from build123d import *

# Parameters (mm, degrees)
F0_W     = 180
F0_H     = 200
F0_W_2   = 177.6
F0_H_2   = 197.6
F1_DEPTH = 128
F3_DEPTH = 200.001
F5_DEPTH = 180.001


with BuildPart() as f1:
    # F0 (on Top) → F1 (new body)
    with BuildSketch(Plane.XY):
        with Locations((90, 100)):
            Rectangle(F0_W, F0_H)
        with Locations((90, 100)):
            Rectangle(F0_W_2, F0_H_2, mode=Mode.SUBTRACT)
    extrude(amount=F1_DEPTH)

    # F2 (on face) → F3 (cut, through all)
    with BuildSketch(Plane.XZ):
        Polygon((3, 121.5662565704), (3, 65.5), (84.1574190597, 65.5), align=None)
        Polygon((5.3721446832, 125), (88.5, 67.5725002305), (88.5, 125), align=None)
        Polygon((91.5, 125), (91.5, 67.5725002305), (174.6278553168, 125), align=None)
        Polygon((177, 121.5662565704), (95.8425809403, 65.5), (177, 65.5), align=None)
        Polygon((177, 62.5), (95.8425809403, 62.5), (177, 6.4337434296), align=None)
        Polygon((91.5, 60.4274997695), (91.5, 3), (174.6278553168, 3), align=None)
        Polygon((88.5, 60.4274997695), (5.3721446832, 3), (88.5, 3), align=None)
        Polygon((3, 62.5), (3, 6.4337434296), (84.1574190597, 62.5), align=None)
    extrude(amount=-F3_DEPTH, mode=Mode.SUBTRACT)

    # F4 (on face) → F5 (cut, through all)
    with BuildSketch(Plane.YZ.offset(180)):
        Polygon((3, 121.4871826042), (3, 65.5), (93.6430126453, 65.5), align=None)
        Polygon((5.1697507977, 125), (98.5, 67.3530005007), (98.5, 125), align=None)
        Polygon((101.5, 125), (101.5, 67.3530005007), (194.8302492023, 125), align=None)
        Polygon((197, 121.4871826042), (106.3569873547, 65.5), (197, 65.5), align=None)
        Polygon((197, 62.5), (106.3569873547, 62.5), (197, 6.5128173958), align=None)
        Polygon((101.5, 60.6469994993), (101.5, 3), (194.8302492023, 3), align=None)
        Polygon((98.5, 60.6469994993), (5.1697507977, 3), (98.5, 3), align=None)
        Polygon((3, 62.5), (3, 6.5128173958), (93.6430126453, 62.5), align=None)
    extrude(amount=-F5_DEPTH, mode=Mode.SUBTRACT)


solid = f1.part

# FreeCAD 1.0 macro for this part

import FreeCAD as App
import Part
import Sketcher

V = App.Vector
Q = App.Units.Quantity


def add_polygon(sketch, points):
    """Adds a closed chain of lines whose ends are joined by coincident constraints."""
    first, n = sketch.GeometryCount, len(points)
    for a, b in zip(points, points[1:] + points[:1]):
        sketch.addGeometry(Part.LineSegment(App.Vector(*a, 0), App.Vector(*b, 0)), False)
    for i in range(n):
        sketch.addConstraint(Sketcher.Constraint("Coincident", first + i, 2, first + (i + 1) % n, 1))

doc = App.newDocument("Part")
body = doc.addObject("PartDesign::Body", "Body")

# Sketch on XY plane
sketch1 = body.newObject("Sketcher::SketchObject", "Sketch")
sketch1.AttachmentSupport = (doc.getObject("XY_Plane"), [""])
sketch1.MapMode = "FlatFace"
add_polygon(sketch1, [(0, 200), (0, 0), (180, 0), (180, 200)])  # lines 0-3
add_polygon(sketch1, [(179, 1), (1, 1), (1, 199), (179, 199)])  # lines 4-7
sketch1.addConstraint(Sketcher.Constraint("Vertical", 0))
sketch1.addConstraint(Sketcher.Constraint("Horizontal", 1))
sketch1.addConstraint(Sketcher.Constraint("Vertical", 2))
sketch1.addConstraint(Sketcher.Constraint("Horizontal", 3))
sketch1.addConstraint(Sketcher.Constraint("Horizontal", 4))
sketch1.addConstraint(Sketcher.Constraint("Vertical", 5))
sketch1.addConstraint(Sketcher.Constraint("Horizontal", 6))
sketch1.addConstraint(Sketcher.Constraint("Vertical", 7))
sketch1.addConstraint(Sketcher.Constraint("Coincident", 0, 2, -1, 1))
sketch1.addConstraint(Sketcher.Constraint("DistanceX", 1, 1, 1, 2, Q("180 mm")))
sketch1.addConstraint(Sketcher.Constraint("DistanceY", 0, 2, 0, 1, Q("200 mm")))
sketch1.addConstraint(Sketcher.Constraint("DistanceX", 4, 2, 4, 1, Q("177.6 mm")))
sketch1.addConstraint(Sketcher.Constraint("DistanceY", 5, 1, 5, 2, Q("197.6 mm")))
sketch1.addConstraint(Sketcher.Constraint("DistanceX", -1, 1, 4, 2, Q("1.2 mm")))
sketch1.addConstraint(Sketcher.Constraint("DistanceY", -1, 1, 4, 2, Q("1.2 mm")))
pad1 = body.newObject("PartDesign::Pad", "Pad")
pad1.Profile = sketch1
pad1.Length = 128

# Sketch on XZ plane
sketch2 = body.newObject("Sketcher::SketchObject", "Sketch001")
sketch2.AttachmentSupport = (doc.getObject("XZ_Plane"), [""])
sketch2.MapMode = "FlatFace"
add_polygon(sketch2, [(3, 122), (3, 66), (84, 66)])  # lines 0-2
add_polygon(sketch2, [(5, 125), (88, 68), (88, 125)])  # lines 3-5
add_polygon(sketch2, [(92, 125), (92, 68), (175, 125)])  # lines 6-8
add_polygon(sketch2, [(177, 122), (96, 66), (177, 66)])  # lines 9-11
add_polygon(sketch2, [(177, 62), (96, 62), (177, 6)])  # lines 12-14
add_polygon(sketch2, [(92, 60), (92, 3), (175, 3)])  # lines 15-17
add_polygon(sketch2, [(88, 60), (5, 3), (88, 3)])  # lines 18-20
add_polygon(sketch2, [(3, 62), (3, 6), (84, 62)])  # lines 21-23
sketch2.addConstraint(Sketcher.Constraint("Vertical", 0))
sketch2.addConstraint(Sketcher.Constraint("Horizontal", 1))
sketch2.addConstraint(Sketcher.Constraint("Vertical", 4))
sketch2.addConstraint(Sketcher.Constraint("Horizontal", 5))
sketch2.addConstraint(Sketcher.Constraint("Vertical", 6))
sketch2.addConstraint(Sketcher.Constraint("Horizontal", 8))
sketch2.addConstraint(Sketcher.Constraint("Horizontal", 10))
sketch2.addConstraint(Sketcher.Constraint("Vertical", 11))
sketch2.addConstraint(Sketcher.Constraint("Horizontal", 12))
sketch2.addConstraint(Sketcher.Constraint("Vertical", 14))
sketch2.addConstraint(Sketcher.Constraint("Vertical", 15))
sketch2.addConstraint(Sketcher.Constraint("Horizontal", 16))
sketch2.addConstraint(Sketcher.Constraint("Horizontal", 19))
sketch2.addConstraint(Sketcher.Constraint("Vertical", 20))
sketch2.addConstraint(Sketcher.Constraint("Vertical", 21))
sketch2.addConstraint(Sketcher.Constraint("Horizontal", 23))
sketch2.addConstraint(Sketcher.Constraint("Parallel", 2, 3))
sketch2.addConstraint(Sketcher.Constraint("Parallel", 7, 9))
sketch2.addConstraint(Sketcher.Constraint("Parallel", 3, 13))
sketch2.addConstraint(Sketcher.Constraint("Parallel", 13, 17))
sketch2.addConstraint(Sketcher.Constraint("Parallel", 9, 18))
sketch2.addConstraint(Sketcher.Constraint("Parallel", 18, 22))
sketch2.addConstraint(Sketcher.Constraint("Horizontal", 3, 2, 6, 2))
sketch2.addConstraint(Sketcher.Constraint("Horizontal", 5, 2, 7, 2))
sketch2.addConstraint(Sketcher.Constraint("Horizontal", 1, 2, 9, 2))
sketch2.addConstraint(Sketcher.Constraint("Horizontal", 2, 2, 11, 2))
sketch2.addConstraint(Sketcher.Constraint("Horizontal", 16, 2, 18, 2))
sketch2.addConstraint(Sketcher.Constraint("Horizontal", 17, 2, 20, 2))
sketch2.addConstraint(Sketcher.Constraint("Horizontal", 13, 2, 21, 2))
sketch2.addConstraint(Sketcher.Constraint("Horizontal", 14, 2, 22, 2))
sketch2.addConstraint(Sketcher.Constraint("Vertical", 9, 2, 12, 2))
sketch2.addConstraint(Sketcher.Constraint("Vertical", 11, 2, 13, 2))
sketch2.addConstraint(Sketcher.Constraint("Vertical", 8, 2, 15, 2))
sketch2.addConstraint(Sketcher.Constraint("Vertical", 7, 2, 16, 2))
sketch2.addConstraint(Sketcher.Constraint("Vertical", 5, 2, 18, 2))
sketch2.addConstraint(Sketcher.Constraint("Vertical", 4, 2, 19, 2))
sketch2.addConstraint(Sketcher.Constraint("Vertical", 2, 2, 21, 2))
sketch2.addConstraint(Sketcher.Constraint("DistanceX", -1, 1, 0, 2, Q("3 mm")))
sketch2.addConstraint(Sketcher.Constraint("DistanceY", -1, 1, 4, 2, Q("125 mm")))
sketch2.addConstraint(Sketcher.Constraint("DistanceX", -1, 1, 10, 2, Q("177 mm")))
sketch2.addConstraint(Sketcher.Constraint("DistanceY", -1, 1, 15, 2, Q("3 mm")))
sketch2.addConstraint(Sketcher.Constraint("DistanceX", 3, 2, 6, 2, Q("3 mm")))
sketch2.addConstraint(Sketcher.Constraint("DistanceY", 12, 2, 9, 2, Q("3 mm")))
sketch2.addConstraint(Sketcher.Constraint("DistanceY", -1, 1, 0, 2, Q("65.5 mm")))
sketch2.addConstraint(Sketcher.Constraint("DistanceX", -1, 1, 3, 2, Q("88.5 mm")))
sketch2.addConstraint(Sketcher.Constraint("DistanceY", 4, 1, 4, 2, Q("57.4275 mm")))
sketch2.addConstraint(Sketcher.Constraint("DistanceX", 1, 1, 1, 2, Q("81.157419 mm")))
sketch2.addConstraint(Sketcher.Constraint("Distance", 2, Q("98.640518 mm")))
pocket1 = body.newObject("PartDesign::Pocket", "Pocket")
pocket1.Profile = sketch2
pocket1.Type = "ThroughAll"

# Sketch on YZ plane
sketch3 = body.newObject("Sketcher::SketchObject", "Sketch002")
sketch3.AttachmentSupport = (doc.getObject("YZ_Plane"), [""])
sketch3.MapMode = "FlatFace"
sketch3.AttachmentOffset = App.Placement(V(0, 0, 180), App.Rotation())
add_polygon(sketch3, [(3, 121), (3, 66), (94, 66)])  # lines 0-2
add_polygon(sketch3, [(5, 125), (98, 67), (98, 125)])  # lines 3-5
add_polygon(sketch3, [(102, 125), (102, 67), (195, 125)])  # lines 6-8
add_polygon(sketch3, [(197, 121), (106, 66), (197, 66)])  # lines 9-11
add_polygon(sketch3, [(197, 62), (106, 62), (197, 7)])  # lines 12-14
add_polygon(sketch3, [(102, 61), (102, 3), (195, 3)])  # lines 15-17
add_polygon(sketch3, [(98, 61), (5, 3), (98, 3)])  # lines 18-20
add_polygon(sketch3, [(3, 62), (3, 7), (94, 62)])  # lines 21-23
sketch3.addConstraint(Sketcher.Constraint("Vertical", 0))
sketch3.addConstraint(Sketcher.Constraint("Horizontal", 1))
sketch3.addConstraint(Sketcher.Constraint("Vertical", 4))
sketch3.addConstraint(Sketcher.Constraint("Horizontal", 5))
sketch3.addConstraint(Sketcher.Constraint("Vertical", 6))
sketch3.addConstraint(Sketcher.Constraint("Horizontal", 8))
sketch3.addConstraint(Sketcher.Constraint("Horizontal", 10))
sketch3.addConstraint(Sketcher.Constraint("Vertical", 11))
sketch3.addConstraint(Sketcher.Constraint("Horizontal", 12))
sketch3.addConstraint(Sketcher.Constraint("Vertical", 14))
sketch3.addConstraint(Sketcher.Constraint("Vertical", 15))
sketch3.addConstraint(Sketcher.Constraint("Horizontal", 16))
sketch3.addConstraint(Sketcher.Constraint("Horizontal", 19))
sketch3.addConstraint(Sketcher.Constraint("Vertical", 20))
sketch3.addConstraint(Sketcher.Constraint("Vertical", 21))
sketch3.addConstraint(Sketcher.Constraint("Horizontal", 23))
sketch3.addConstraint(Sketcher.Constraint("Parallel", 2, 3))
sketch3.addConstraint(Sketcher.Constraint("Parallel", 7, 9))
sketch3.addConstraint(Sketcher.Constraint("Parallel", 3, 13))
sketch3.addConstraint(Sketcher.Constraint("Parallel", 13, 17))
sketch3.addConstraint(Sketcher.Constraint("Parallel", 9, 18))
sketch3.addConstraint(Sketcher.Constraint("Parallel", 18, 22))
sketch3.addConstraint(Sketcher.Constraint("Horizontal", 3, 2, 6, 2))
sketch3.addConstraint(Sketcher.Constraint("Horizontal", 5, 2, 7, 2))
sketch3.addConstraint(Sketcher.Constraint("Horizontal", 1, 2, 9, 2))
sketch3.addConstraint(Sketcher.Constraint("Horizontal", 2, 2, 11, 2))
sketch3.addConstraint(Sketcher.Constraint("Horizontal", 16, 2, 18, 2))
sketch3.addConstraint(Sketcher.Constraint("Horizontal", 17, 2, 20, 2))
sketch3.addConstraint(Sketcher.Constraint("Horizontal", 13, 2, 21, 2))
sketch3.addConstraint(Sketcher.Constraint("Horizontal", 14, 2, 22, 2))
sketch3.addConstraint(Sketcher.Constraint("Vertical", 9, 2, 12, 2))
sketch3.addConstraint(Sketcher.Constraint("Vertical", 11, 2, 13, 2))
sketch3.addConstraint(Sketcher.Constraint("Vertical", 8, 2, 15, 2))
sketch3.addConstraint(Sketcher.Constraint("Vertical", 7, 2, 16, 2))
sketch3.addConstraint(Sketcher.Constraint("Vertical", 5, 2, 18, 2))
sketch3.addConstraint(Sketcher.Constraint("Vertical", 4, 2, 19, 2))
sketch3.addConstraint(Sketcher.Constraint("Vertical", 2, 2, 21, 2))
sketch3.addConstraint(Sketcher.Constraint("DistanceX", -1, 1, 0, 2, Q("3 mm")))
sketch3.addConstraint(Sketcher.Constraint("DistanceY", -1, 1, 4, 2, Q("125 mm")))
sketch3.addConstraint(Sketcher.Constraint("DistanceX", -1, 1, 10, 2, Q("197 mm")))
sketch3.addConstraint(Sketcher.Constraint("DistanceY", -1, 1, 15, 2, Q("3 mm")))
sketch3.addConstraint(Sketcher.Constraint("DistanceX", 3, 2, 6, 2, Q("3 mm")))
sketch3.addConstraint(Sketcher.Constraint("DistanceY", 12, 2, 9, 2, Q("3 mm")))
sketch3.addConstraint(Sketcher.Constraint("DistanceY", -1, 1, 0, 2, Q("65.5 mm")))
sketch3.addConstraint(Sketcher.Constraint("DistanceX", -1, 1, 3, 2, Q("98.5 mm")))
sketch3.addConstraint(Sketcher.Constraint("DistanceY", 4, 1, 4, 2, Q("57.646999 mm")))
sketch3.addConstraint(Sketcher.Constraint("DistanceX", 5, 2, 5, 1, Q("93.330249 mm")))
sketch3.addConstraint(Sketcher.Constraint("Distance", 2, Q("106.53976 mm")))
pocket2 = body.newObject("PartDesign::Pocket", "Pocket001")
pocket2.Profile = sketch3
pocket2.Type = "ThroughAll"

doc.recompute()
